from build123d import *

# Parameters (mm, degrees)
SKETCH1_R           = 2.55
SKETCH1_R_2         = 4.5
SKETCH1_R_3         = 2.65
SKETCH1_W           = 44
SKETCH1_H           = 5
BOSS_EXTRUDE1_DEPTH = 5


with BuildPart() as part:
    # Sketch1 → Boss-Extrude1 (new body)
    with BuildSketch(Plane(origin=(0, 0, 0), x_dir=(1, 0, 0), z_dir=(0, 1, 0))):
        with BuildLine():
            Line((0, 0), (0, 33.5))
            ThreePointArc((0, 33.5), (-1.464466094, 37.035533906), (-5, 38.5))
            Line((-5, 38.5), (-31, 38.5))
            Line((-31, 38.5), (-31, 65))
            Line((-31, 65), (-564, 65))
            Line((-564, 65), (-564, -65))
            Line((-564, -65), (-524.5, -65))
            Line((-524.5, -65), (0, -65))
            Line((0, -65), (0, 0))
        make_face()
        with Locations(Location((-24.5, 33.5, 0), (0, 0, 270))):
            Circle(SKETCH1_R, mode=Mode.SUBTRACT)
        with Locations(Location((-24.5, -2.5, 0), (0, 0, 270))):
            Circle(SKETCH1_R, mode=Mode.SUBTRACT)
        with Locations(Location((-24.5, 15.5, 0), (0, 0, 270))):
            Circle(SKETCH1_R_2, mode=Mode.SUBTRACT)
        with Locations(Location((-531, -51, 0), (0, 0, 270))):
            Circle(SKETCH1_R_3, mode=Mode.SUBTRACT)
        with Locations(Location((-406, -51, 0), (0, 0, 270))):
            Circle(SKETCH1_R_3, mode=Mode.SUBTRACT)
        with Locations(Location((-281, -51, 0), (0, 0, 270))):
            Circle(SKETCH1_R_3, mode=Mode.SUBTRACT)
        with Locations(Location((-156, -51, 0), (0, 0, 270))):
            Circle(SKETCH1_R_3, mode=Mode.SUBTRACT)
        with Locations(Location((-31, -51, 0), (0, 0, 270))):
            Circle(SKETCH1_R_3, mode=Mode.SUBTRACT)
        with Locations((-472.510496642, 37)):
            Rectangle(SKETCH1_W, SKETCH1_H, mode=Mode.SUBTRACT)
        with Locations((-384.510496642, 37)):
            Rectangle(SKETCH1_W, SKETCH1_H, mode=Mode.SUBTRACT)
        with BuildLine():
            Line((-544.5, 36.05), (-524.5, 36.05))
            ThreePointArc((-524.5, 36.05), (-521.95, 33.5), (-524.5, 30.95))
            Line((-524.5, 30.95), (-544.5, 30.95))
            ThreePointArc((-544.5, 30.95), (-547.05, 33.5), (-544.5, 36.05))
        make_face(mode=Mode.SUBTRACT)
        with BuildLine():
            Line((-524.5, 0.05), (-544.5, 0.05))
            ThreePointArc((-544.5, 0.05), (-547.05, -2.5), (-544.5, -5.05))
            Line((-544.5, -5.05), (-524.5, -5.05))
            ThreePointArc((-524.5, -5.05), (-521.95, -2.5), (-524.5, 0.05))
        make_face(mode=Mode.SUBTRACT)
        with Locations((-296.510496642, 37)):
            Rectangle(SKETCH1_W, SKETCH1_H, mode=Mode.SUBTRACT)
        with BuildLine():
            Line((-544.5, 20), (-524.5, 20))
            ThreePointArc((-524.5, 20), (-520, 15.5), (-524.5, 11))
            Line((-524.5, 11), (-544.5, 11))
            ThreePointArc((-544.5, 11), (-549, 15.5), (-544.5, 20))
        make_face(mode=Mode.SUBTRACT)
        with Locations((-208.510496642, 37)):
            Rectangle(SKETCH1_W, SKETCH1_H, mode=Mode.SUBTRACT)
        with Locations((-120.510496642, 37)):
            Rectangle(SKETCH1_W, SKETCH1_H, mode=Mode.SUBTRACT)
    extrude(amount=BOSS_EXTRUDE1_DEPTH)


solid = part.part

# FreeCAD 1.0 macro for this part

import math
import FreeCAD as App
import Part
import Sketcher
from FreeCAD import Vector
Q = App.Units.Quantity


def add_polygon(sketch, points):
    """Adds a closed chain of lines whose ends are joined by coincident constraints."""
    first, n = sketch.GeometryCount, len(points)
    for a, b in zip(points, points[1:] + points[:1]):
        sketch.addGeometry(Part.LineSegment(App.Vector(*a, 0), App.Vector(*b, 0)), False)
    for i in range(n):
        sketch.addConstraint(Sketcher.Constraint("Coincident", first + i, 2, first + (i + 1) % n, 1))

doc = App.newDocument("Part")
body = doc.addObject("PartDesign::Body", "Body")

# Sketch on XZ plane
sketch1 = body.newObject("Sketcher::SketchObject", "Sketch")
sketch1.AttachmentSupport = (doc.getObject("XZ_Plane"), [""])
sketch1.MapMode = "FlatFace"
sketch1.addGeometry(Part.ArcOfCircle(Part.Circle(Vector(-5, -33.5, 0), Vector(0, 0, 1), 5), math.radians(-90), math.radians(0)), False)  # 0
sketch1.addGeometry(Part.LineSegment(Vector(-5, -38.5, 0), Vector(-31, -38.5, 0)), False)  # 1
sketch1.addGeometry(Part.LineSegment(Vector(-31, -38.5, 0), Vector(-31, -65, 0)), False)  # 2
sketch1.addGeometry(Part.LineSegment(Vector(-31, -65, 0), Vector(-564, -65, 0)), False)  # 3
sketch1.addGeometry(Part.LineSegment(Vector(-564, -65, 0), Vector(-564, 65, 0)), False)  # 4
sketch1.addGeometry(Part.LineSegment(Vector(-564, 65, 0), Vector(0, 65, 0)), False)  # 5
sketch1.addGeometry(Part.LineSegment(Vector(0, 65, 0), Vector(0, -33.5, 0)), False)  # 6
sketch1.addGeometry(Part.Circle(Vector(-531, 51, 0), Vector(0, 0, 1), 2.6), False)  # 7
sketch1.addGeometry(Part.Circle(Vector(-406, 51, 0), Vector(0, 0, 1), 2.6), False)  # 8
sketch1.addGeometry(Part.Circle(Vector(-281, 51, 0), Vector(0, 0, 1), 2.6), False)  # 9
sketch1.addGeometry(Part.Circle(Vector(-156, 51, 0), Vector(0, 0, 1), 2.6), False)  # 10
sketch1.addGeometry(Part.Circle(Vector(-31, 51, 0), Vector(0, 0, 1), 2.6), False)  # 11
sketch1.addGeometry(Part.LineSegment(Vector(-544.5, -0.1, 0), Vector(-524.5, -0.1, 0)), False)  # 12
sketch1.addGeometry(Part.ArcOfCircle(Part.Circle(Vector(-524.5, 2.5, 0), Vector(0, 0, 1), 2.5), math.radians(-90), math.radians(90)), False)  # 13
sketch1.addGeometry(Part.LineSegment(Vector(-524.5, 5, 0), Vector(-544.5, 5, 0)), False)  # 14
sketch1.addGeometry(Part.ArcOfCircle(Part.Circle(Vector(-544.5, 2.5, 0), Vector(0, 0, 1), 2.5), math.radians(90), math.radians(270)), False)  # 15
sketch1.addGeometry(Part.ArcOfCircle(Part.Circle(Vector(-544.5, -15.5, 0), Vector(0, 0, 1), 4.5), math.radians(90), math.radians(270)), False)  # 16
sketch1.addGeometry(Part.LineSegment(Vector(-544.5, -20, 0), Vector(-524.5, -20, 0)), False)  # 17
sketch1.addGeometry(Part.ArcOfCircle(Part.Circle(Vector(-524.5, -15.5, 0), Vector(0, 0, 1), 4.5), math.radians(-90), math.radians(90)), False)  # 18
sketch1.addGeometry(Part.LineSegment(Vector(-524.5, -11, 0), Vector(-544.5, -11, 0)), False)  # 19
sketch1.addGeometry(Part.ArcOfCircle(Part.Circle(Vector(-544.5, -33.5, 0), Vector(0, 0, 1), 2.5), math.radians(90), math.radians(270)), False)  # 20
sketch1.addGeometry(Part.LineSegment(Vector(-544.5, -36, 0), Vector(-524.5, -36, 0)), False)  # 21
sketch1.addGeometry(Part.ArcOfCircle(Part.Circle(Vector(-524.5, -33.5, 0), Vector(0, 0, 1), 2.5), math.radians(-90), math.radians(90)), False)  # 22
sketch1.addGeometry(Part.LineSegment(Vector(-524.5, -30.9, 0), Vector(-544.5, -30.9, 0)), False)  # 23
add_polygon(sketch1, [(-450.5, -34.5), (-494.5, -34.5), (-494.5, -39.5), (-450.5, -39.5)])  # lines 24-27
add_polygon(sketch1, [(-362.5, -34.5), (-406.5, -34.5), (-406.5, -39.5), (-362.5, -39.5)])  # lines 28-31
add_polygon(sketch1, [(-274.5, -34.5), (-318.5, -34.5), (-318.5, -39.5), (-274.5, -39.5)])  # lines 32-35
sketch1.addGeometry(Part.Circle(Vector(-24.5, 2.5, 0), Vector(0, 0, 1), 2.5), False)  # 36
sketch1.addGeometry(Part.Circle(Vector(-24.5, -15.5, 0), Vector(0, 0, 1), 4.5), False)  # 37
add_polygon(sketch1, [(-186.5, -34.5), (-230.5, -34.5), (-230.5, -39.5), (-186.5, -39.5)])  # lines 38-41
add_polygon(sketch1, [(-98.5, -34.5), (-142.5, -34.5), (-142.5, -39.5), (-98.5, -39.5)])  # lines 42-45
sketch1.addGeometry(Part.Circle(Vector(-24.5, -33.5, 0), Vector(0, 0, 1), 2.5), False)  # 46
sketch1.addConstraint([
    Sketcher.Constraint("Tangent", 0, 1, 1, 1),
    Sketcher.Constraint("Coincident", 1, 2, 2, 1),
    Sketcher.Constraint("Coincident", 2, 2, 3, 1),
    Sketcher.Constraint("Coincident", 3, 2, 4, 1),
    Sketcher.Constraint("Coincident", 4, 2, 5, 1),
    Sketcher.Constraint("Coincident", 5, 2, 6, 1),
    Sketcher.Constraint("Tangent", 6, 2, 0, 2),
    Sketcher.Constraint("Tangent", 12, 2, 13, 1),
    Sketcher.Constraint("Tangent", 13, 2, 14, 1),
    Sketcher.Constraint("Tangent", 14, 2, 15, 1),
    Sketcher.Constraint("Tangent", 15, 2, 12, 1),
    Sketcher.Constraint("Tangent", 16, 2, 17, 1),
    Sketcher.Constraint("Tangent", 17, 2, 18, 1),
    Sketcher.Constraint("Tangent", 18, 2, 19, 1),
    Sketcher.Constraint("Tangent", 19, 2, 16, 1),
    Sketcher.Constraint("Tangent", 20, 2, 21, 1),
    Sketcher.Constraint("Tangent", 21, 2, 22, 1),
    Sketcher.Constraint("Tangent", 22, 2, 23, 1),
    Sketcher.Constraint("Tangent", 23, 2, 20, 1),
    Sketcher.Constraint("Horizontal", 1),
    Sketcher.Constraint("Vertical", 2),
    Sketcher.Constraint("Horizontal", 3),
    Sketcher.Constraint("Vertical", 4),
    Sketcher.Constraint("Horizontal", 5),
    Sketcher.Constraint("Vertical", 6),
    Sketcher.Constraint("Horizontal", 12),
    Sketcher.Constraint("Horizontal", 14),
    Sketcher.Constraint("Horizontal", 17),
    Sketcher.Constraint("Horizontal", 19),
    Sketcher.Constraint("Horizontal", 21),
    Sketcher.Constraint("Horizontal", 23),
    Sketcher.Constraint("Horizontal", 24),
    Sketcher.Constraint("Vertical", 25),
    Sketcher.Constraint("Horizontal", 26),
    Sketcher.Constraint("Vertical", 27),
    Sketcher.Constraint("Horizontal", 28),
    Sketcher.Constraint("Vertical", 29),
    Sketcher.Constraint("Horizontal", 30),
    Sketcher.Constraint("Vertical", 31),
    Sketcher.Constraint("Horizontal", 32),
    Sketcher.Constraint("Vertical", 33),
    Sketcher.Constraint("Horizontal", 34),
    Sketcher.Constraint("Vertical", 35),
    Sketcher.Constraint("Horizontal", 38),
    Sketcher.Constraint("Vertical", 39),
    Sketcher.Constraint("Horizontal", 40),
    Sketcher.Constraint("Vertical", 41),
    Sketcher.Constraint("Horizontal", 42),
    Sketcher.Constraint("Vertical", 43),
    Sketcher.Constraint("Horizontal", 44),
    Sketcher.Constraint("Vertical", 45),
    Sketcher.Constraint("Equal", 7, 8),
    Sketcher.Constraint("Equal", 8, 9),
    Sketcher.Constraint("Equal", 9, 10),
    Sketcher.Constraint("Equal", 10, 11),
    Sketcher.Constraint("Equal", 15, 20),
    Sketcher.Constraint("Equal", 22, 36),
    Sketcher.Constraint("Equal", 18, 37),
    Sketcher.Constraint("Equal", 36, 46),
    Sketcher.Constraint("PointOnObject", 5, 2, -2),
    Sketcher.Constraint("Horizontal", 7, 3, 8, 3),
    Sketcher.Constraint("Horizontal", 8, 3, 9, 3),
    Sketcher.Constraint("Horizontal", 9, 3, 10, 3),
    Sketcher.Constraint("Horizontal", 10, 3, 11, 3),
    Sketcher.Constraint("Horizontal", 0, 3, 20, 3),
    Sketcher.Constraint("Horizontal", 15, 3, 36, 3),
    Sketcher.Constraint("Horizontal", 18, 3, 37, 3),
    Sketcher.Constraint("Horizontal", 22, 3, 46, 3),
    Sketcher.Constraint("Horizontal", 27, 2, 28, 2),
    Sketcher.Constraint("Horizontal", 26, 2, 29, 2),
    Sketcher.Constraint("Horizontal", 31, 2, 32, 2),
    Sketcher.Constraint("Horizontal", 30, 2, 33, 2),
    Sketcher.Constraint("Horizontal", 35, 2, 38, 2),
    Sketcher.Constraint("Horizontal", 34, 2, 39, 2),
    Sketcher.Constraint("Horizontal", 41, 2, 42, 2),
    Sketcher.Constraint("Horizontal", 40, 2, 43, 2),
    Sketcher.Constraint("Vertical", 15, 3, 16, 3),
    Sketcher.Constraint("Vertical", 13, 3, 18, 3),
    Sketcher.Constraint("Vertical", 16, 3, 20, 3),
    Sketcher.Constraint("Vertical", 18, 3, 22, 3),
    Sketcher.Constraint("Vertical", 36, 3, 37, 3),
    Sketcher.Constraint("Vertical", 37, 3, 46, 3),
    Sketcher.Constraint("Vertical", 11, 3, 1, 2),
    Sketcher.Constraint("Equal", 26, 28),
    Sketcher.Constraint("Equal", 30, 32),
    Sketcher.Constraint("Equal", 34, 38),
    Sketcher.Constraint("Equal", 40, 42),
    Sketcher.Constraint("Diameter", 37, Q("9 mm")),
    Sketcher.Constraint("Radius", 0, Q("5 mm")),
    Sketcher.Constraint("Diameter", 7, Q("5.3 mm")),
    Sketcher.Constraint("Diameter", 36, Q("5.1 mm")),
    Sketcher.Constraint("DistanceX", 1, 2, 1, 1, Q("26 mm")),
    Sketcher.Constraint("DistanceX", 3, 2, 3, 1, Q("533 mm")),
    Sketcher.Constraint("DistanceX", 12, 1, 12, 2, Q("20 mm")),
    Sketcher.Constraint("DistanceX", 24, 2, 24, 1, Q("44 mm")),
    Sketcher.Constraint("DistanceY", 4, 1, 4, 2, Q("130 mm")),
    Sketcher.Constraint("DistanceY", 25, 2, 25, 1, Q("5 mm")),
    Sketcher.Constraint("DistanceY", 2, 2, 2, 1, Q("26.5 mm")),
    Sketcher.Constraint("DistanceX", 7, 3, -1, 1, Q("531 mm")),
    Sketcher.Constraint("DistanceY", -1, 1, 7, 3, Q("51 mm")),
    Sketcher.Constraint("DistanceX", 8, 3, -1, 1, Q("406 mm")),
    Sketcher.Constraint("DistanceX", 9, 3, -1, 1, Q("281 mm")),
    Sketcher.Constraint("DistanceX", 10, 3, -1, 1, Q("156 mm")),
    Sketcher.Constraint("DistanceY", 2, 2, -1, 1, Q("65 mm")),
    Sketcher.Constraint("DistanceY", 16, 2, -1, 1, Q("20 mm")),
    Sketcher.Constraint("DistanceY", 16, 3, 15, 3, Q("18 mm")),
    Sketcher.Constraint("DistanceY", 24, 2, 22, 3, Q("1 mm")),
    Sketcher.Constraint("DistanceX", 27, 2, 28, 2, Q("44 mm")),
    Sketcher.Constraint("DistanceX", 31, 2, 32, 2, Q("44 mm")),
    Sketcher.Constraint("DistanceX", 35, 2, 38, 2, Q("44 mm")),
    Sketcher.Constraint("DistanceX", 41, 2, 42, 2, Q("44 mm")),
    Sketcher.Constraint("DistanceX", 13, 3, -1, 1, Q("524.5 mm")),
    Sketcher.Constraint("DistanceX", 36, 3, -1, 1, Q("24.5 mm")),
    Sketcher.Constraint("DistanceX", 24, 2, -1, 1, Q("494.510497 mm")),
])
pad1 = body.newObject("PartDesign::Pad", "Pad")
pad1.Profile = sketch1
pad1.Length = 5
pad1.Reversed = True

doc.recompute()
